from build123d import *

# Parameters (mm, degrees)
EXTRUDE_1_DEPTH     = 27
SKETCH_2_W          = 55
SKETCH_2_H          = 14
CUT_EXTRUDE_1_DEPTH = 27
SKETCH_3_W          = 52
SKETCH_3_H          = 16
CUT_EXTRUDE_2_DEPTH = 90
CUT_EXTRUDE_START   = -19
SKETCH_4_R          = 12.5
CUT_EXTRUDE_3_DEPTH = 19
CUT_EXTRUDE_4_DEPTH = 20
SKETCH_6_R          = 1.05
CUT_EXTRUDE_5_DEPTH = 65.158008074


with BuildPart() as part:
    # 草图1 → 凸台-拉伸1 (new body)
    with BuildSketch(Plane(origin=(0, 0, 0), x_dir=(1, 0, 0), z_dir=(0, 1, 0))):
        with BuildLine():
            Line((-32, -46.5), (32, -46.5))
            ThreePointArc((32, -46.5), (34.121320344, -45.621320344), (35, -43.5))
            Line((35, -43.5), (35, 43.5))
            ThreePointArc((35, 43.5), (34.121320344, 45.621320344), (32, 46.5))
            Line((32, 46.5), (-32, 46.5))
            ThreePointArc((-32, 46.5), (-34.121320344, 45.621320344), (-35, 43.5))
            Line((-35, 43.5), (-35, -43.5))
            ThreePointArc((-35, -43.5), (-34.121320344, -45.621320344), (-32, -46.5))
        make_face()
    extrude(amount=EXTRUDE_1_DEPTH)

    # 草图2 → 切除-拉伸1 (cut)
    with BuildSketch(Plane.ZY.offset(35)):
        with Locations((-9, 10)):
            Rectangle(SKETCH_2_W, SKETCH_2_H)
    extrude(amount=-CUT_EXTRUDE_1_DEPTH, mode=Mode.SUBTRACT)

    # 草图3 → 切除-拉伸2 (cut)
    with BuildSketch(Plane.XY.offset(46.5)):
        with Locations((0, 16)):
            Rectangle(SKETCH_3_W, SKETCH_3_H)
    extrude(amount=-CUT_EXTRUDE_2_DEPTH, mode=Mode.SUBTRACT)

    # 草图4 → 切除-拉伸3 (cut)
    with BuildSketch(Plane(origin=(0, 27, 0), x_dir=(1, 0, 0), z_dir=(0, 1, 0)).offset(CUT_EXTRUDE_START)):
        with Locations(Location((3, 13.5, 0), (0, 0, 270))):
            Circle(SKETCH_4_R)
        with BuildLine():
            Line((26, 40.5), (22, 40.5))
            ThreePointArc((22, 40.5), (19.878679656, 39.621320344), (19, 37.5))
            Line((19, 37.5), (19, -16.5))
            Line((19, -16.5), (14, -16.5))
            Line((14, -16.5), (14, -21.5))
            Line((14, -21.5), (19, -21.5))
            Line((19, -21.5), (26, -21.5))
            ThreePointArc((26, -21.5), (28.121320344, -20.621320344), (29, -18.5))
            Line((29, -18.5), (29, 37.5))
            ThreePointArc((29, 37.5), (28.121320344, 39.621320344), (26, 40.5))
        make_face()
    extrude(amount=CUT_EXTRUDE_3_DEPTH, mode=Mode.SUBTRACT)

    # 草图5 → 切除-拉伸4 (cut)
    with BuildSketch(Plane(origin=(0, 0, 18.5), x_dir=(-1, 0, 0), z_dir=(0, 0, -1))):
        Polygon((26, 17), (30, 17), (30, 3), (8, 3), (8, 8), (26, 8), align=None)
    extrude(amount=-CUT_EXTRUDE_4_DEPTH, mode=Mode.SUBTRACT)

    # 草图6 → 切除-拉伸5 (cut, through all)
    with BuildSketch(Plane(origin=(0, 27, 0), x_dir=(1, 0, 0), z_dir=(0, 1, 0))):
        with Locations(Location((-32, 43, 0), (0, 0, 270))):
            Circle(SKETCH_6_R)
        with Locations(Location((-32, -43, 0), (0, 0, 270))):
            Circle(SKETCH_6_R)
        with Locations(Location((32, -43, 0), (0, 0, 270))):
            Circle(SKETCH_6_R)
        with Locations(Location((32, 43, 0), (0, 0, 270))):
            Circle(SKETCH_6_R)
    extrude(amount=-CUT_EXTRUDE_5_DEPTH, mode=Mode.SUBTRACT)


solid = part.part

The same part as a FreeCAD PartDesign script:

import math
import FreeCAD as App
import Part
import Sketcher


def add_polygon(sketch, points):
    """Adds a closed chain of lines whose ends are joined by coincident constraints."""
    first, n = sketch.GeometryCount, len(points)
    for a, b in zip(points, points[1:] + points[:1]):
        sketch.addGeometry(Part.LineSegment(App.Vector(*a, 0), App.Vector(*b, 0)), False)
    for i in range(n):
        sketch.addConstraint(Sketcher.Constraint("Coincident", first + i, 2, first + (i + 1) % n, 1))

doc = App.newDocument("Part")
body = doc.addObject("PartDesign::Body", "Body")

sketch1 = body.newObject("Sketcher::SketchObject", "Sketch")
sketch1.AttachmentSupport = (doc.getObject("XZ_Plane"), [""])
sketch1.MapMode = "FlatFace"
sketch1.addGeometry([
    Part.LineSegment(App.Vector(-32, 46.5, 0), App.Vector(32, 46.5, 0)),
    Part.ArcOfCircle(Part.Circle(App.Vector(32, 43.5, 0), App.Vector(0, 0, 1), 3), math.radians(0), math.radians(90)),
    Part.LineSegment(App.Vector(35, 43.5, 0), App.Vector(35, -43.5, 0)),
    Part.ArcOfCircle(Part.Circle(App.Vector(32, -43.5, 0), App.Vector(0, 0, 1), 3), math.radians(-90), math.radians(0)),
    Part.LineSegment(App.Vector(32, -46.5, 0), App.Vector(-32, -46.5, 0)),
    Part.ArcOfCircle(Part.Circle(App.Vector(-32, -43.5, 0), App.Vector(0, 0, 1), 3), math.radians(180), math.radians(270)),
    Part.LineSegment(App.Vector(-35, -43.5, 0), App.Vector(-35, 43.5, 0)),
    Part.ArcOfCircle(Part.Circle(App.Vector(-32, 43.5, 0), App.Vector(0, 0, 1), 3), math.radians(90), math.radians(180)),
], False)
sketch1.addConstraint([
    Sketcher.Constraint("Tangent", 0, 2, 1, 2),
    Sketcher.Constraint("Tangent", 1, 1, 2, 1),
    Sketcher.Constraint("Tangent", 2, 2, 3, 2),
    Sketcher.Constraint("Tangent", 3, 1, 4, 1),
    Sketcher.Constraint("Tangent", 4, 2, 5, 2),
    Sketcher.Constraint("Tangent", 5, 1, 6, 1),
    Sketcher.Constraint("Tangent", 6, 2, 7, 2),
    Sketcher.Constraint("Tangent", 7, 1, 0, 1),
    Sketcher.Constraint("Horizontal", 0),
    Sketcher.Constraint("Vertical", 2),
    Sketcher.Constraint("Horizontal", 4),
    Sketcher.Constraint("Vertical", 6),
    Sketcher.Constraint("Equal", 1, 3),
    Sketcher.Constraint("Equal", 3, 5),
    Sketcher.Constraint("Equal", 5, 7),
    Sketcher.Constraint("Symmetric", 1, 3, 5, 3, -1, 1),
    Sketcher.Constraint("Radius", 1, 3.0),
    Sketcher.Constraint("DistanceX", 0, 1, 0, 2, 64.0),
    Sketcher.Constraint("DistanceY", 2, 2, 2, 1, 87.0),
])
pad1 = body.newObject("PartDesign::Pad", "Pad")
pad1.Profile = sketch1
pad1.Length = 27
pad1.Reversed = True

sketch2 = body.newObject("Sketcher::SketchObject", "Sketch001")
sketch2.AttachmentSupport = (doc.getObject("YZ_Plane"), [""])
sketch2.MapMode = "FlatFace"
sketch2.AttachmentOffset = App.Placement(App.Vector(0, 0, -35), App.Rotation())
add_polygon(sketch2, [(17, -36), (3, -36), (3, 18), (17, 18)])
sketch2.addConstraint([
    Sketcher.Constraint("Horizontal", 0),
    Sketcher.Constraint("Vertical", 1),
    Sketcher.Constraint("Horizontal", 2),
    Sketcher.Constraint("Vertical", 3),
    Sketcher.Constraint("DistanceX", 0, 2, 0, 1, 14.0),
    Sketcher.Constraint("DistanceY", 1, 1, 1, 2, 55.0),
    Sketcher.Constraint("DistanceX", -1, 1, 0, 2, 3.0),
    Sketcher.Constraint("DistanceY", 0, 2, -1, 1, 36.5),
])
pocket1 = body.newObject("PartDesign::Pocket", "Pocket")
pocket1.Profile = sketch2
pocket1.Length = 27
pocket1.Reversed = True

sketch3 = body.newObject("Sketcher::SketchObject", "Sketch002")
sketch3.AttachmentSupport = (doc.getObject("XY_Plane"), [""])
sketch3.MapMode = "FlatFace"
sketch3.AttachmentOffset = App.Placement(App.Vector(0, 0, 46.5), App.Rotation())
add_polygon(sketch3, [(-26, 24), (-26, 8), (26, 8), (26, 24)])
sketch3.addConstraint([
    Sketcher.Constraint("Vertical", 0),
    Sketcher.Constraint("Horizontal", 1),
    Sketcher.Constraint("Vertical", 2),
    Sketcher.Constraint("Horizontal", 3),
    Sketcher.Constraint("DistanceX", 1, 1, 1, 2, 52.0),
    Sketcher.Constraint("DistanceY", 0, 2, 0, 1, 16.0),
    Sketcher.Constraint("DistanceX", 0, 2, -1, 1, 26.0),
    Sketcher.Constraint("DistanceY", -1, 1, 0, 2, 8.0),
])
pocket2 = body.newObject("PartDesign::Pocket", "Pocket001")
pocket2.Profile = sketch3
pocket2.Length = 90

sketch4 = body.newObject("Sketcher::SketchObject", "Sketch003")
sketch4.AttachmentSupport = (doc.getObject("XZ_Plane"), [""])
sketch4.MapMode = "FlatFace"
sketch4.AttachmentOffset = App.Placement(App.Vector(0, 0, -8), App.Rotation())
sketch4.addGeometry([
    Part.Circle(App.Vector(3, -13.5, 0), App.Vector(0, 0, 1), 12.5),
    Part.LineSegment(App.Vector(26, -40.5, 0), App.Vector(22, -40.5, 0)),
    Part.ArcOfCircle(Part.Circle(App.Vector(22, -37.5, 0), App.Vector(0, 0, 1), 3), math.radians(180), math.radians(270)),
    Part.LineSegment(App.Vector(19, -37.5, 0), App.Vector(19, 16.5, 0)),
    Part.LineSegment(App.Vector(19, 16.5, 0), App.Vector(14, 16.5, 0)),
    Part.LineSegment(App.Vector(14, 16.5, 0), App.Vector(14, 21.5, 0)),
    Part.LineSegment(App.Vector(14, 21.5, 0), App.Vector(26, 21.5, 0)),
    Part.ArcOfCircle(Part.Circle(App.Vector(26, 18.5, 0), App.Vector(0, 0, 1), 3), math.radians(0), math.radians(90)),
    Part.LineSegment(App.Vector(29, 18.5, 0), App.Vector(29, -37.5, 0)),
    Part.ArcOfCircle(Part.Circle(App.Vector(26, -37.5, 0), App.Vector(0, 0, 1), 3), math.radians(-90), math.radians(0)),
], False)
sketch4.addConstraint([
    Sketcher.Constraint("Tangent", 1, 2, 2, 2),
    Sketcher.Constraint("Tangent", 2, 1, 3, 1),
    Sketcher.Constraint("Coincident", 3, 2, 4, 1),
    Sketcher.Constraint("Coincident", 4, 2, 5, 1),
    Sketcher.Constraint("Coincident", 5, 2, 6, 1),
    Sketcher.Constraint("Tangent", 6, 2, 7, 2),
    Sketcher.Constraint("Tangent", 7, 1, 8, 1),
    Sketcher.Constraint("Tangent", 8, 2, 9, 2),
    Sketcher.Constraint("Tangent", 9, 1, 1, 1),
    Sketcher.Constraint("Horizontal", 1),
    Sketcher.Constraint("Vertical", 3),
    Sketcher.Constraint("Horizontal", 4),
    Sketcher.Constraint("Vertical", 5),
    Sketcher.Constraint("Horizontal", 6),
    Sketcher.Constraint("Vertical", 8),
    Sketcher.Constraint("Equal", 2, 7),
    Sketcher.Constraint("Equal", 7, 9),
    Sketcher.Constraint("Equal", 4, 5),
    Sketcher.Constraint("Diameter", 0, 25.0),
    Sketcher.Constraint("Radius", 2, 3.0),
    Sketcher.Constraint("DistanceX", 1, 2, 1, 1, 4.0),
    Sketcher.Constraint("DistanceX", 4, 2, 4, 1, 5.0),
    Sketcher.Constraint("DistanceY", 3, 1, 3, 2, 54.0),
    Sketcher.Constraint("DistanceX", -1, 1, 0, 3, 3.0),
    Sketcher.Constraint("DistanceX", -1, 1, 2, 3, 22.0),
    Sketcher.Constraint("DistanceY", 2, 3, 0, 3, 24.0),
    Sketcher.Constraint("DistanceY", 0, 3, -1, 1, 13.5),
])
pocket3 = body.newObject("PartDesign::Pocket", "Pocket002")
pocket3.Profile = sketch4
pocket3.Length = 19

sketch5 = body.newObject("Sketcher::SketchObject", "Sketch004")
sketch5.AttachmentSupport = (doc.getObject("XY_Plane"), [""])
sketch5.MapMode = "FlatFace"
sketch5.AttachmentOffset = App.Placement(App.Vector(0, 0, 18.5), App.Rotation())
add_polygon(sketch5, [(-30, 17), (-26, 17), (-26, 8), (-8, 8), (-8, 3), (-30, 3)])
sketch5.addConstraint([
    Sketcher.Constraint("Horizontal", 0),
    Sketcher.Constraint("Vertical", 1),
    Sketcher.Constraint("Horizontal", 2),
    Sketcher.Constraint("Vertical", 3),
    Sketcher.Constraint("Horizontal", 4),
    Sketcher.Constraint("Vertical", 5),
    Sketcher.Constraint("DistanceX", 0, 1, 0, 2, 4.0),
    Sketcher.Constraint("DistanceX", 2, 1, 2, 2, 18.0),
    Sketcher.Constraint("DistanceY", 1, 2, 1, 1, 9.0),
    Sketcher.Constraint("DistanceY", 3, 2, 3, 1, 5.0),
    Sketcher.Constraint("DistanceX", 0, 2, -1, 1, 26.0),
    Sketcher.Constraint("DistanceY", -1, 1, 0, 2, 17.0),
])
pocket4 = body.newObject("PartDesign::Pocket", "Pocket003")
pocket4.Profile = sketch5
pocket4.Length = 20
pocket4.Reversed = True

sketch6 = body.newObject("Sketcher::SketchObject", "Sketch005")
sketch6.AttachmentSupport = (doc.getObject("XZ_Plane"), [""])
sketch6.MapMode = "FlatFace"
sketch6.AttachmentOffset = App.Placement(App.Vector(0, 0, -27), App.Rotation())
sketch6.addGeometry([
    Part.Circle(App.Vector(-32, -43, 0), App.Vector(0, 0, 1), 1.1),
    Part.Circle(App.Vector(-32, 43, 0), App.Vector(0, 0, 1), 1.1),
    Part.Circle(App.Vector(32, 43, 0), App.Vector(0, 0, 1), 1.1),
    Part.Circle(App.Vector(32, -43, 0), App.Vector(0, 0, 1), 1.1),
], False)
sketch6.addConstraint([
    Sketcher.Constraint("Equal", 0, 1),
    Sketcher.Constraint("Equal", 1, 2),
    Sketcher.Constraint("Equal", 2, 3),
    Sketcher.Constraint("Symmetric", 0, 3, 2, 3, -1, 1),
    Sketcher.Constraint("Symmetric", 1, 3, 3, 3, -1, 1),
    Sketcher.Constraint("Symmetric", 1, 3, 2, 3, -2),
    Sketcher.Constraint("Diameter", 0, 2.1),
    Sketcher.Constraint("DistanceX", 0, 3, -1, 1, 32.0),
    Sketcher.Constraint("DistanceY", 0, 3, -1, 1, 43.0),
])
pocket5 = body.newObject("PartDesign::Pocket", "Pocket004")
pocket5.Profile = sketch6
pocket5.Type = "ThroughAll"
pocket5.Reversed = True

doc.recompute()
